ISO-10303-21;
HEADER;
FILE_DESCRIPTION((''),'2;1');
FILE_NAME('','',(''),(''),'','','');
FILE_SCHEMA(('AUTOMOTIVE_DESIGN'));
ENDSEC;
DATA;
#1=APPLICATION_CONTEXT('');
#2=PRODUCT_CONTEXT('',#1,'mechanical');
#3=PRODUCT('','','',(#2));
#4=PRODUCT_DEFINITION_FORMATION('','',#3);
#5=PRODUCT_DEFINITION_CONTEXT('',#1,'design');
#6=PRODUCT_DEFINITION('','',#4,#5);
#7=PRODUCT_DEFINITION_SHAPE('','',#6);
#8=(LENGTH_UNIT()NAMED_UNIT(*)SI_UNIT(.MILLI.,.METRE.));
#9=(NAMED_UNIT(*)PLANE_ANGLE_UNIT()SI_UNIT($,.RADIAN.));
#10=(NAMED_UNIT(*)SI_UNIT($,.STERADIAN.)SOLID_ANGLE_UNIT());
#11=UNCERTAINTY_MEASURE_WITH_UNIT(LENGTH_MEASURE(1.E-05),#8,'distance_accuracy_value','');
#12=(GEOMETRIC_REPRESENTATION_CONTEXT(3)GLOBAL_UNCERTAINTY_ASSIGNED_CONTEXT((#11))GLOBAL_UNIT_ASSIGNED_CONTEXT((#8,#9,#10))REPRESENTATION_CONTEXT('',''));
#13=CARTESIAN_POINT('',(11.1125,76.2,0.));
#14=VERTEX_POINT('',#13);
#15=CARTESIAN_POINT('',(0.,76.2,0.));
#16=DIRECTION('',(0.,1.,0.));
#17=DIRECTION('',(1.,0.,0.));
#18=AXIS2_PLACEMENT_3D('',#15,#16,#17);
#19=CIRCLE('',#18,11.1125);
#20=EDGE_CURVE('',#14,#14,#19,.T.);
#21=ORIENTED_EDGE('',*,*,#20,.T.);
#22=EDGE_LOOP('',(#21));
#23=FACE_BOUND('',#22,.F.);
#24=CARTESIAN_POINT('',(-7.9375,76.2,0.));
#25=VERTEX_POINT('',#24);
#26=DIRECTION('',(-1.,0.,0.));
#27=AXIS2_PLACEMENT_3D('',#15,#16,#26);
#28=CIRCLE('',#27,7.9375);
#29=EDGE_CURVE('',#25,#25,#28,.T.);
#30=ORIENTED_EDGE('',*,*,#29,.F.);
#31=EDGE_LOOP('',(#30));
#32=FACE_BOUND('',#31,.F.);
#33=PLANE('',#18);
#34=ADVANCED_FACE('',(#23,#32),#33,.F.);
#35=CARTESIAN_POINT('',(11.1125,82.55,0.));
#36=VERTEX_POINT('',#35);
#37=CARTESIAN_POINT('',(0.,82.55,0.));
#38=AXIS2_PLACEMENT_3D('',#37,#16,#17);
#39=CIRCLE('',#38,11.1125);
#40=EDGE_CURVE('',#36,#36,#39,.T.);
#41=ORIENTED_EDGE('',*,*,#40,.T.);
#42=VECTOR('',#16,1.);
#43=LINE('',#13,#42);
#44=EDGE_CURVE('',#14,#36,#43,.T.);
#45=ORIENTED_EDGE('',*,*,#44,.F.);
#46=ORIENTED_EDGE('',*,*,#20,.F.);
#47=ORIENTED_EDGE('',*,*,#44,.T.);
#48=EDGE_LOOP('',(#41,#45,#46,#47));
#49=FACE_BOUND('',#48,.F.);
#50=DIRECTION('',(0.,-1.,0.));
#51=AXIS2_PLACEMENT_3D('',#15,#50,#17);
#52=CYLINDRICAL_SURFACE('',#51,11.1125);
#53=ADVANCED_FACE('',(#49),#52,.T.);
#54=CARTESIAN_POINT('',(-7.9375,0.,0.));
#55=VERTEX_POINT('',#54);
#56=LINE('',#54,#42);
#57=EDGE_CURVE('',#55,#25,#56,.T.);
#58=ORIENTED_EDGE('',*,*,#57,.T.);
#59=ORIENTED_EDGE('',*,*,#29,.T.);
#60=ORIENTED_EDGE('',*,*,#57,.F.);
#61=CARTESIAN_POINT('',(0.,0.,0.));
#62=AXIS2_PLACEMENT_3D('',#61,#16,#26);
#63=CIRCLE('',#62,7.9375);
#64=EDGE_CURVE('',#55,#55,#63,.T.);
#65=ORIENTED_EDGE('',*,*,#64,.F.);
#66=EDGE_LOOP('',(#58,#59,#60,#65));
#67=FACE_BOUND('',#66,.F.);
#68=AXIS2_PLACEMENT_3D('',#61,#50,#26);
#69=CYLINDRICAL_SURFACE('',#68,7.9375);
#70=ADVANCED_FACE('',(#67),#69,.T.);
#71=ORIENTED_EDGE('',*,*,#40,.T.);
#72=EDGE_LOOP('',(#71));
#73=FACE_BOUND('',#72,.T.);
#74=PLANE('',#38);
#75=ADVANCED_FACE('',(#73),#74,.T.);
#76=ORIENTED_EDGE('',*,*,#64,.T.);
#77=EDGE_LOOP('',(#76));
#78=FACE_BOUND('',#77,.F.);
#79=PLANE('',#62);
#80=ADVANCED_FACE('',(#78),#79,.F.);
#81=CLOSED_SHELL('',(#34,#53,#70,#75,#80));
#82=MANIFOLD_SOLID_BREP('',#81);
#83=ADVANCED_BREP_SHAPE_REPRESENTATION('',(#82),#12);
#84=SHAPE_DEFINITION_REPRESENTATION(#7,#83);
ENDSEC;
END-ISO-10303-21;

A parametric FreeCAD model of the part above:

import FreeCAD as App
import Part
import Sketcher
from FreeCAD import Vector
Q = App.Units.Quantity

doc = App.newDocument("Part")
body = doc.addObject("PartDesign::Body", "Body")

# Sketch on XZ plane
sketch1 = body.newObject("Sketcher::SketchObject", "Sketch")
sketch1.AttachmentSupport = (doc.getObject("XZ_Plane"), [""])
sketch1.MapMode = "FlatFace"
sketch1.addGeometry(Part.Circle(Vector(0, 0, 0), Vector(0, 0, 1), 8), False)
sketch1.addConstraint([
    Sketcher.Constraint("Coincident", 0, 3, -1, 1),
    Sketcher.Constraint("Diameter", 0, Q("0.625 in")),
])
pad1 = body.newObject("PartDesign::Pad", "Pad")
pad1.Profile = sketch1
pad1.Length = Q("3 in")
pad1.Reversed = True

# Sketch on XZ plane
sketch2 = body.newObject("Sketcher::SketchObject", "Sketch001")
sketch2.AttachmentSupport = (doc.getObject("XZ_Plane"), [""])
sketch2.MapMode = "FlatFace"
sketch2.AttachmentOffset = App.Placement(Vector(0, 0, -3 * 25.4), App.Rotation())
sketch2.addGeometry(Part.Circle(Vector(0, 0, 0), Vector(0, 0, 1), 11), False)
sketch2.addConstraint([
    Sketcher.Constraint("Coincident", 0, 3, -1, 1),
    Sketcher.Constraint("Diameter", 0, Q("0.875 in")),
])
pad2 = body.newObject("PartDesign::Pad", "Pad001")
pad2.Profile = sketch2
pad2.Length = Q("0.25 in")
pad2.Reversed = True

doc.recompute()
